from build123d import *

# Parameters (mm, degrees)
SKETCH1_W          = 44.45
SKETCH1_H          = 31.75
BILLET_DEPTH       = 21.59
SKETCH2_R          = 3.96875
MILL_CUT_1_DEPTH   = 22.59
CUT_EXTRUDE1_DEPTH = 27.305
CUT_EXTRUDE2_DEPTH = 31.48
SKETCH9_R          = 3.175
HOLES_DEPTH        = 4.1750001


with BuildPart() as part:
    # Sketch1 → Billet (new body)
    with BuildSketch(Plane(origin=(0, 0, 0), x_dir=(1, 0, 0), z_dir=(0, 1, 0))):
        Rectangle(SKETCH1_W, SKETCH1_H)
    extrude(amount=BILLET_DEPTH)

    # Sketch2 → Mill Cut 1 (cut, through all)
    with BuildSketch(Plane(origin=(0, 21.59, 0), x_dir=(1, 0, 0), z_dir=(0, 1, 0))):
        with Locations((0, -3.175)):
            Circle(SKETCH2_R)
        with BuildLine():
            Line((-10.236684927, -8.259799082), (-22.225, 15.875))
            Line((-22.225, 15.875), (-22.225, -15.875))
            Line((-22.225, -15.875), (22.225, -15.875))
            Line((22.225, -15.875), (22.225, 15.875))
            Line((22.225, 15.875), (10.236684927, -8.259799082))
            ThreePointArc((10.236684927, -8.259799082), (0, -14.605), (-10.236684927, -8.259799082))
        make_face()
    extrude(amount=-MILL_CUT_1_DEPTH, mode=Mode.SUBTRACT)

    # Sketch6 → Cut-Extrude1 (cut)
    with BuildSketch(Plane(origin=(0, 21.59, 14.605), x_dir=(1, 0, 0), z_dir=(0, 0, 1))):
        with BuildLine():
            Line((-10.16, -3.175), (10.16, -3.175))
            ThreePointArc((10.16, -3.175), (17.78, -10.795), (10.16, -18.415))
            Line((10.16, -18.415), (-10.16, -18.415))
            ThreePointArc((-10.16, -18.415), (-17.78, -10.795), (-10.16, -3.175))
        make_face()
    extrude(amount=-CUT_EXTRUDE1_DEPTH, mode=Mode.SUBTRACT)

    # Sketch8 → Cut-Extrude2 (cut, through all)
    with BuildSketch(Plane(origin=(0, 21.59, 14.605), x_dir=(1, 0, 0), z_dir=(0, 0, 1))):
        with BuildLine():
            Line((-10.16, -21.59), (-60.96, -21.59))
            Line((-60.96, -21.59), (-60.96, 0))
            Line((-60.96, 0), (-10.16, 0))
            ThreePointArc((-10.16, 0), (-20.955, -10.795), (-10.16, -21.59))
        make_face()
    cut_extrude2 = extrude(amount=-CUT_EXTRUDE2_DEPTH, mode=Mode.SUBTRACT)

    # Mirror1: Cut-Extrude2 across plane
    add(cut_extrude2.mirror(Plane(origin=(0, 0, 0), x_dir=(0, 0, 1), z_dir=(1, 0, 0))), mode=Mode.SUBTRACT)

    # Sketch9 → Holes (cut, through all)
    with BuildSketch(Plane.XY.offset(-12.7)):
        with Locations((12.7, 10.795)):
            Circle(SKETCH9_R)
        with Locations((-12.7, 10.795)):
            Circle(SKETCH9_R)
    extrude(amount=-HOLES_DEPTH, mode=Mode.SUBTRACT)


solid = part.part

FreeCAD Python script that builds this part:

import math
import FreeCAD as App
import Part
import Sketcher
from FreeCAD import Vector
Q = App.Units.Quantity


def add_polygon(sketch, points):
    """Adds a closed chain of lines whose ends are joined by coincident constraints."""
    first, n = sketch.GeometryCount, len(points)
    for a, b in zip(points, points[1:] + points[:1]):
        sketch.addGeometry(Part.LineSegment(App.Vector(*a, 0), App.Vector(*b, 0)), False)
    for i in range(n):
        sketch.addConstraint(Sketcher.Constraint("Coincident", first + i, 2, first + (i + 1) % n, 1))

doc = App.newDocument("Part")
body = doc.addObject("PartDesign::Body", "Body")

# Sketch on XZ plane
sketch1 = doc.addObject("Sketcher::SketchObject", "Sketch")
body.addObject(sketch1)
sketch1.AttachmentSupport = (doc.XZ_Plane, [""])
sketch1.MapMode = "FlatFace"
add_polygon(sketch1, [(-22, -16), (-22, 16), (22, 16), (22, -16)])  # lines 0-3
sketch1.addConstraint([
    Sketcher.Constraint("Vertical", 0),
    Sketcher.Constraint("Horizontal", 1),
    Sketcher.Constraint("Vertical", 2),
    Sketcher.Constraint("Horizontal", 3),
    Sketcher.Constraint("Symmetric", 0, 2, 2, 2, -1, 1),
    Sketcher.Constraint("DistanceX", 1, 1, 1, 2, Q("1.75 in")),
    Sketcher.Constraint("DistanceY", 0, 1, 0, 2, Q("1.25 in")),
])
pad1 = doc.addObject("PartDesign::Pad", "Pad")
body.addObject(pad1)
pad1.Profile = sketch1
pad1.Length = Q("0.85 in")
pad1.Reversed = True

# Sketch on XZ plane
sketch2 = doc.addObject("Sketcher::SketchObject", "Sketch001")
body.addObject(sketch2)
sketch2.AttachmentSupport = (doc.XZ_Plane, [""])
sketch2.MapMode = "FlatFace"
sketch2.AttachmentOffset = App.Placement(Vector(0, 0, -0.85 * 25.4), App.Rotation())
sketch2.addGeometry([
    Part.Circle(Vector(0, 3.2, 0), Vector(0, 0, 1), 4),  # 0
    Part.LineSegment(Vector(-10.2, 8.3, 0), Vector(-22.2, -15.9, 0)),  # 1
    Part.LineSegment(Vector(-22.2, -15.9, 0), Vector(-22.2, 15.9, 0)),  # 2
    Part.LineSegment(Vector(-22.2, 15.9, 0), Vector(22.2, 15.9, 0)),  # 3
    Part.LineSegment(Vector(22.2, 15.9, 0), Vector(22.2, -15.9, 0)),  # 4
    Part.LineSegment(Vector(22.2, -15.9, 0), Vector(10.2, 8.3, 0)),  # 5
    Part.ArcOfCircle(Part.Circle(Vector(0, 3.2, 0), Vector(0, 0, 1), 11.4), math.radians(26), math.radians(154)),  # 6
], False)
sketch2.addConstraint([
    Sketcher.Constraint("Coincident", 1, 2, 2, 1),
    Sketcher.Constraint("Coincident", 2, 2, 3, 1),
    Sketcher.Constraint("Coincident", 3, 2, 4, 1),
    Sketcher.Constraint("Coincident", 4, 2, 5, 1),
    Sketcher.Constraint("Tangent", 5, 2, 6, 1),
    Sketcher.Constraint("Tangent", 6, 2, 1, 1),
    Sketcher.Constraint("Vertical", 2),
    Sketcher.Constraint("Horizontal", 3),
    Sketcher.Constraint("Vertical", 4),
    Sketcher.Constraint("Coincident", 6, 3, 0, 3),
    Sketcher.Constraint("Symmetric", 1, 2, 3, 2, -1, 1),
    Sketcher.Constraint("Symmetric", 5, 2, 6, 2, -2),
    Sketcher.Constraint("Radius", 6, Q("0.45 in")),
    Sketcher.Constraint("Diameter", 0, Q("0.3125 in")),
    Sketcher.Constraint("DistanceX", 3, 1, 3, 2, Q("1.75 in")),
    Sketcher.Constraint("DistanceY", 2, 1, 2, 2, Q("1.25 in")),
    Sketcher.Constraint("DistanceY", 0, 3, 2, 2, Q("0.5 in")),
])
pocket1 = doc.addObject("PartDesign::Pocket", "Pocket")
body.addObject(pocket1)
pocket1.Profile = sketch2
pocket1.Type = "ThroughAll"
pocket1.Reversed = True

# Sketch on XY plane
sketch3 = doc.addObject("Sketcher::SketchObject", "Sketch002")
body.addObject(sketch3)
sketch3.AttachmentSupport = (doc.XY_Plane, [""])
sketch3.MapMode = "FlatFace"
sketch3.AttachmentOffset = App.Placement(Vector(0, 0, 0.575 * 25.4), App.Rotation())
sketch3.addGeometry([
    Part.LineSegment(Vector(10, 18, 0), Vector(-10, 18, 0)),
    Part.ArcOfCircle(Part.Circle(Vector(-10, 11, 0), Vector(0, 0, 1), 8), math.radians(90), math.radians(270)),
    Part.LineSegment(Vector(-10, 3, 0), Vector(10, 3, 0)),
    Part.ArcOfCircle(Part.Circle(Vector(10, 11, 0), Vector(0, 0, 1), 8), math.radians(-90), math.radians(90)),
], False)
sketch3.addConstraint([
    Sketcher.Constraint("Tangent", 0, 2, 1, 1),
    Sketcher.Constraint("Tangent", 1, 2, 2, 1),
    Sketcher.Constraint("Tangent", 2, 2, 3, 1),
    Sketcher.Constraint("Tangent", 3, 2, 0, 1),
    Sketcher.Constraint("Horizontal", 0),
    Sketcher.Constraint("Horizontal", 2),
    Sketcher.Constraint("Radius", 1, Q("0.3 in")),
    Sketcher.Constraint("DistanceX", 0, 2, 0, 1, Q("0.8 in")),
    Sketcher.Constraint("DistanceX", 1, 3, -1, 1, Q("0.4 in")),
    Sketcher.Constraint("DistanceY", -1, 1, 1, 3, Q("0.425 in")),
])
pocket2 = doc.addObject("PartDesign::Pocket", "Pocket001")
body.addObject(pocket2)
pocket2.Profile = sketch3
pocket2.Length = Q("1.075 in")

# Sketch on XY plane
sketch4 = doc.addObject("Sketcher::SketchObject", "Sketch003")
body.addObject(sketch4)
sketch4.AttachmentSupport = (doc.XY_Plane, [""])
sketch4.MapMode = "FlatFace"
sketch4.AttachmentOffset = App.Placement(Vector(0, 0, 0.575 * 25.4), App.Rotation())
sketch4.addGeometry([
    Part.LineSegment(Vector(-61, 0, 0), Vector(-10, 0, 0)),
    Part.ArcOfCircle(Part.Circle(Vector(-10, 11, 0), Vector(0, 0, 1), 11), math.radians(90), math.radians(270)),
    Part.LineSegment(Vector(-10, 22, 0), Vector(-61, 22, 0)),
    Part.LineSegment(Vector(-61, 22, 0), Vector(-61, 0, 0)),
], False)
sketch4.addConstraint([
    Sketcher.Constraint("Tangent", 0, 2, 1, 2),
    Sketcher.Constraint("Tangent", 1, 1, 2, 1),
    Sketcher.Constraint("Coincident", 2, 2, 3, 1),
    Sketcher.Constraint("Coincident", 3, 2, 0, 1),
    Sketcher.Constraint("Horizontal", 0),
    Sketcher.Constraint("Horizontal", 2),
    Sketcher.Constraint("Vertical", 3),
    Sketcher.Constraint("PointOnObject", 0, 2, -1),
    Sketcher.Constraint("DistanceX", 0, 1, 0, 2, Q("2 in")),
    Sketcher.Constraint("Radius", 1, Q("0.425 in")),
    Sketcher.Constraint("DistanceX", 1, 3, -1, 1, Q("0.4 in")),
])
pocket3 = doc.addObject("PartDesign::Pocket", "Pocket002")
body.addObject(pocket3)
pocket3.Profile = sketch4
pocket3.Type = "ThroughAll"
doc.recompute()

mirrored = doc.addObject("PartDesign::Mirrored", "Mirrored")
body.addObject(mirrored)
mirrored.Originals = [pocket3]
mirrored.MirrorPlane = (doc.YZ_Plane, [""])
body.Tip = mirrored

# Sketch on XY plane
sketch5 = doc.addObject("Sketcher::SketchObject", "Sketch004")
body.addObject(sketch5)
sketch5.AttachmentSupport = (doc.XY_Plane, [""])
sketch5.MapMode = "FlatFace"
sketch5.AttachmentOffset = App.Placement(Vector(0, 0, -0.5 * 25.4), App.Rotation())
sketch5.addGeometry([
    Part.Circle(Vector(12.7, 10.8, 0), Vector(0, 0, 1), 3.2),
    Part.Circle(Vector(-12.7, 10.8, 0), Vector(0, 0, 1), 3.2),
], False)
sketch5.addConstraint([
    Sketcher.Constraint("Equal", 0, 1),
    Sketcher.Constraint("Symmetric", 0, 3, 1, 3, -2),
    Sketcher.Constraint("Diameter", 0, Q("0.25 in")),
    Sketcher.Constraint("DistanceX", 1, 3, 0, 3, Q("1 in")),
    Sketcher.Constraint("DistanceY", -1, 1, 0, 3, Q("0.425 in")),
])
pocket4 = doc.addObject("PartDesign::Pocket", "Pocket003")
body.addObject(pocket4)
pocket4.Profile = sketch5
pocket4.Type = "ThroughAll"

doc.recompute()
